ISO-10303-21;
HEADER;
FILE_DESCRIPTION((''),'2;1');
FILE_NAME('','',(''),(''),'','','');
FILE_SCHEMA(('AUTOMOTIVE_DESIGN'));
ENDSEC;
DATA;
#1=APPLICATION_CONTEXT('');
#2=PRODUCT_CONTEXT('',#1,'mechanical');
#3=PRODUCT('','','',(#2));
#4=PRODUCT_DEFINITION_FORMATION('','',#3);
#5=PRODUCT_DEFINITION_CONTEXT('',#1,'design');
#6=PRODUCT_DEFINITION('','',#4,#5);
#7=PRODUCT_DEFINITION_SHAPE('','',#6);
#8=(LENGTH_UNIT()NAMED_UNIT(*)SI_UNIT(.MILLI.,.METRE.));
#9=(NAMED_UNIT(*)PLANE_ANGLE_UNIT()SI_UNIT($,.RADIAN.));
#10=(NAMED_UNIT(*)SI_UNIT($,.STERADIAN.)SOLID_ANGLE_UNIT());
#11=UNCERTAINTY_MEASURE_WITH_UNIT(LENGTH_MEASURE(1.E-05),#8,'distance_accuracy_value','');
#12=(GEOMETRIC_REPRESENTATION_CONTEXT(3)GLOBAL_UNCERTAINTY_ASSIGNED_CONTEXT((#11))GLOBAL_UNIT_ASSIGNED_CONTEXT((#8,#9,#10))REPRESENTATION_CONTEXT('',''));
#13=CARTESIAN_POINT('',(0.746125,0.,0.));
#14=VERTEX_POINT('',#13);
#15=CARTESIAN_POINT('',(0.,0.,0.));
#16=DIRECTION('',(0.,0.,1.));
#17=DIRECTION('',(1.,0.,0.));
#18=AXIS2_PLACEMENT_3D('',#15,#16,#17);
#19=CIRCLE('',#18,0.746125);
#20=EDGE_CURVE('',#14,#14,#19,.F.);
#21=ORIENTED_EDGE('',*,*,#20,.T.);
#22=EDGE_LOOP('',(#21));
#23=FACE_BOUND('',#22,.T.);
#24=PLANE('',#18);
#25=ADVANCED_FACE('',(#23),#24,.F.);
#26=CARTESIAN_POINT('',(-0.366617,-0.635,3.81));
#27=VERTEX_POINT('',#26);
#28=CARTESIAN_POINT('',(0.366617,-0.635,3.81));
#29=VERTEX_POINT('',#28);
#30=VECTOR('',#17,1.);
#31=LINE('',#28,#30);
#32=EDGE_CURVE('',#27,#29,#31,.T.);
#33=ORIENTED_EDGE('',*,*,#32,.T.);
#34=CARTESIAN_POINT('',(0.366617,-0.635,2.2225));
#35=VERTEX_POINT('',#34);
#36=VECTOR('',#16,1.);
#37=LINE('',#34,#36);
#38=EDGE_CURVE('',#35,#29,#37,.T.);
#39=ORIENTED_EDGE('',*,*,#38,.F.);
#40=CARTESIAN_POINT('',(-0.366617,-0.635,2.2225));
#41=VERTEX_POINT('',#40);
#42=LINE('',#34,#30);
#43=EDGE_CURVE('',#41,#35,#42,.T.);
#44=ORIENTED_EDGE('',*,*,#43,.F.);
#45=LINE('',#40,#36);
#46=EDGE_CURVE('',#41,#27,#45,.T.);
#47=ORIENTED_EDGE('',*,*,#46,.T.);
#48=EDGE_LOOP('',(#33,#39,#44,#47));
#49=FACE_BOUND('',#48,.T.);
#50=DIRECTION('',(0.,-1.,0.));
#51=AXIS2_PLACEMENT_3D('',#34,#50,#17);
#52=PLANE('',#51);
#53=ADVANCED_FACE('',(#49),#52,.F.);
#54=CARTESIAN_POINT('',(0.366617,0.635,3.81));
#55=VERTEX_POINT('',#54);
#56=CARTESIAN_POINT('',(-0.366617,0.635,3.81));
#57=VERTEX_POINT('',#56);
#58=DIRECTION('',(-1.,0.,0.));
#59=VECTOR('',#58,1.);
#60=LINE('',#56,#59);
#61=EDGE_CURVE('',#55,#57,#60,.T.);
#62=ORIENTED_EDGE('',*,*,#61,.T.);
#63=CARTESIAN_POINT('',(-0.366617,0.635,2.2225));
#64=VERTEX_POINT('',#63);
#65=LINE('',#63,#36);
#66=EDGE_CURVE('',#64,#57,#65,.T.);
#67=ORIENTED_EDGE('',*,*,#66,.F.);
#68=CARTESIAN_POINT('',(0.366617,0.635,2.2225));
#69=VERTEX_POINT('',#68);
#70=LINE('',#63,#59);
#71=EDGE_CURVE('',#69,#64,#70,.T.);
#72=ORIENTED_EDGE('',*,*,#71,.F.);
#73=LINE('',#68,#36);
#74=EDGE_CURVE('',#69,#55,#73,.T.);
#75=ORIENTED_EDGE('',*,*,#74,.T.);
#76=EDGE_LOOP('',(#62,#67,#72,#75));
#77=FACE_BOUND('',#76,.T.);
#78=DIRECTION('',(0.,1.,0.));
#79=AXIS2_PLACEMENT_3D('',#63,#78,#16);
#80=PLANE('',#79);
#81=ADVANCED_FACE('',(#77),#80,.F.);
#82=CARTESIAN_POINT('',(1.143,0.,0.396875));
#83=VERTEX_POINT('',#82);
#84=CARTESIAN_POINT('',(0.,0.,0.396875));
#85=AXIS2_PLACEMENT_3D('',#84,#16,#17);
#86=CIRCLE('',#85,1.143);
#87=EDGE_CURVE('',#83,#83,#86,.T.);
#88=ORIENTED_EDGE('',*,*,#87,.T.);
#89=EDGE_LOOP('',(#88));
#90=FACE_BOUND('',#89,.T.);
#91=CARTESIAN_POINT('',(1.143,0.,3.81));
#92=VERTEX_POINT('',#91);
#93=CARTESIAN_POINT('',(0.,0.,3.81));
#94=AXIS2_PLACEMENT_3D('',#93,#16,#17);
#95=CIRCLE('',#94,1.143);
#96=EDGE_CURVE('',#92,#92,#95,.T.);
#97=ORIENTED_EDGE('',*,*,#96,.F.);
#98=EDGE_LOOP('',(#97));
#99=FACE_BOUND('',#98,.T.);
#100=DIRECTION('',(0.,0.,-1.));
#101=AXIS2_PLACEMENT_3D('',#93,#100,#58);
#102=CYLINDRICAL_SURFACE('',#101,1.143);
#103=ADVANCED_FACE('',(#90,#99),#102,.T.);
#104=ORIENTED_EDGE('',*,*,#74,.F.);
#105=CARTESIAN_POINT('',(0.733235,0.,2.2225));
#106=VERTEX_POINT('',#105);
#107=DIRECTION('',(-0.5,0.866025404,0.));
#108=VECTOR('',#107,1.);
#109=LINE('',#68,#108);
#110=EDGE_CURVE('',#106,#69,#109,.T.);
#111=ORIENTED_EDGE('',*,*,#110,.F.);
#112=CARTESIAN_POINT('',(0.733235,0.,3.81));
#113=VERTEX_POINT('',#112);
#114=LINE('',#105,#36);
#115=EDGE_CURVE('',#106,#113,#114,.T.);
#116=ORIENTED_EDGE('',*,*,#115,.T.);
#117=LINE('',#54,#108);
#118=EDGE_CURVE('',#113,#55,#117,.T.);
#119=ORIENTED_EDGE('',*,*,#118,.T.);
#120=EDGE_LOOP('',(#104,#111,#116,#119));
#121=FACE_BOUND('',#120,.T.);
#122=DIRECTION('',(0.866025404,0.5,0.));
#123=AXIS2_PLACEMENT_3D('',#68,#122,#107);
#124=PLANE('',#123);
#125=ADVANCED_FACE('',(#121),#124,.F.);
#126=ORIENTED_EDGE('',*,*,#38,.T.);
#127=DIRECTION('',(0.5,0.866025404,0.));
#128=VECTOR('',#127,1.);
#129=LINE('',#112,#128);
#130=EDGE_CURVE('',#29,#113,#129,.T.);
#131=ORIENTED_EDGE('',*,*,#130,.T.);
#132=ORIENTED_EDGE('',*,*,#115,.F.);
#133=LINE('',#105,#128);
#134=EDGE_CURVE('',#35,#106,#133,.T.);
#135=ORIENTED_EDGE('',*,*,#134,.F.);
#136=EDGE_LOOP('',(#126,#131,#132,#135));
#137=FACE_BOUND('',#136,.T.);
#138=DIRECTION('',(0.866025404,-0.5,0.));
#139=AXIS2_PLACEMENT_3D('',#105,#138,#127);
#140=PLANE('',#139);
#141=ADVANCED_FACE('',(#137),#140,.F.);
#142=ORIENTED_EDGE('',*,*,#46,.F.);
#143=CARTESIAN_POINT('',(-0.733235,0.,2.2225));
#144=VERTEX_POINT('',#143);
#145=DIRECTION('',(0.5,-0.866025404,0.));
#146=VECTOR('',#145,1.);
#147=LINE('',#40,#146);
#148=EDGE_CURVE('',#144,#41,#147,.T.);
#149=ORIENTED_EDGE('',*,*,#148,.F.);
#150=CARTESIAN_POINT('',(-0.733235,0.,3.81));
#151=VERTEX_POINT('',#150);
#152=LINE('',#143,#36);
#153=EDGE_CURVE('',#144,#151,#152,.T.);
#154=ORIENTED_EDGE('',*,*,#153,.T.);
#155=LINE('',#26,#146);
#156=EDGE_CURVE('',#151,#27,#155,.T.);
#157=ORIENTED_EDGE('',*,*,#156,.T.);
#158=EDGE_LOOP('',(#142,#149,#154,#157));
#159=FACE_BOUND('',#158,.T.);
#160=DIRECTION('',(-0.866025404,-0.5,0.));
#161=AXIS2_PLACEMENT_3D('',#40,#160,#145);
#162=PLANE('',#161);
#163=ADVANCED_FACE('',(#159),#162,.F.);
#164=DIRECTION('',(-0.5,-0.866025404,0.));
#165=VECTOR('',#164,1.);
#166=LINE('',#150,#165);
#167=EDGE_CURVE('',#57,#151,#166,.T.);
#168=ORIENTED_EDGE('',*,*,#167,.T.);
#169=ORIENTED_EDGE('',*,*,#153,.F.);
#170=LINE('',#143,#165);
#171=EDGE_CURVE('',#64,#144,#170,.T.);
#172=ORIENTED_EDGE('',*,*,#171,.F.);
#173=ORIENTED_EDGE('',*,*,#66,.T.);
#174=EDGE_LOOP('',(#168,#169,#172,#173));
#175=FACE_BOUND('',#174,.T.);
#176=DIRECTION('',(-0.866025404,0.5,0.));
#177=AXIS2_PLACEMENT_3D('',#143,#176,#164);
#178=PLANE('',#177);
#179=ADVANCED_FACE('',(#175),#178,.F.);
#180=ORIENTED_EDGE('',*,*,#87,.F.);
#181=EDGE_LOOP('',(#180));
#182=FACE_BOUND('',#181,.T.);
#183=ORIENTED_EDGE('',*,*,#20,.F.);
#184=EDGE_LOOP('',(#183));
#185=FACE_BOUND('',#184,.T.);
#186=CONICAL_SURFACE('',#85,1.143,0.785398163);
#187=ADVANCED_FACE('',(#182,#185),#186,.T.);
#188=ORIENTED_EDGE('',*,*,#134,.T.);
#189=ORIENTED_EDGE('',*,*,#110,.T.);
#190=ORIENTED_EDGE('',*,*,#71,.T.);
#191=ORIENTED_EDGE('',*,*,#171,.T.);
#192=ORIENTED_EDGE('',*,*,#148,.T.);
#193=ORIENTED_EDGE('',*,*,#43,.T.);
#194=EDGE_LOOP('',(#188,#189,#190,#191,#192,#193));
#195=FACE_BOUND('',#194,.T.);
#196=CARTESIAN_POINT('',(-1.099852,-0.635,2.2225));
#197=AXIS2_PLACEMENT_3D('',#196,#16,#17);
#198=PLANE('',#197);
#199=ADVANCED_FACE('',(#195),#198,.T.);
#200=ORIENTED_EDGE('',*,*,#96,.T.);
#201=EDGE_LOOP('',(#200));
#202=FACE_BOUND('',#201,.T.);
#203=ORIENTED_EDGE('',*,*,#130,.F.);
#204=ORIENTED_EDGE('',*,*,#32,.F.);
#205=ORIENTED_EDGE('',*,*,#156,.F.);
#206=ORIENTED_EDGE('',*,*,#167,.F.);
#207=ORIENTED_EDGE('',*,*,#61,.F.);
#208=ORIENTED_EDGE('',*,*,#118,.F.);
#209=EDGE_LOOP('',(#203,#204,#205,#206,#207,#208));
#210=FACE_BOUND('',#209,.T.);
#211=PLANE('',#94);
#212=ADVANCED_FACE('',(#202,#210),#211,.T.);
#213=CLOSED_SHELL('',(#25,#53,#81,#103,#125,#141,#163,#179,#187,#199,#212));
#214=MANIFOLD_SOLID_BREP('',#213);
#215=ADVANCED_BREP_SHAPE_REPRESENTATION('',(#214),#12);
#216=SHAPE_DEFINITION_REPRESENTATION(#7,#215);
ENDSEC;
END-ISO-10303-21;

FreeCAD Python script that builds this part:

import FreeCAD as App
import Part
import Sketcher
from FreeCAD import Vector
Q = App.Units.Quantity


def edges_at(feature, points):
    """Names of the edges that pass closest to the given points."""
    edges = feature.Shape.Edges
    near = lambda p: min(range(len(edges)), key=lambda i: edges[i].distToShape(Part.Vertex(*p))[0])
    return sorted({f"Edge{near(p) + 1}" for p in points})

doc = App.newDocument("Part")
body = doc.addObject("PartDesign::Body", "Body")

# Sketch on XY plane
sketch1 = body.newObject("Sketcher::SketchObject", "Sketch")
sketch1.AttachmentSupport = (doc.getObject("XY_Plane"), [""])
sketch1.MapMode = "FlatFace"
sketch1.addGeometry(Part.Circle(Vector(0, 0, 0), Vector(0, 0, 1), 1.143), False)
sketch1.addConstraint([
    Sketcher.Constraint("Coincident", 0, 3, -1, 1),
    Sketcher.Constraint("Diameter", 0, Q("0.09 in")),
])
pad1 = body.newObject("PartDesign::Pad", "Pad")
pad1.Profile = sketch1
pad1.Length = Q("0.15 in")

# Sketch on XY plane
sketch2 = body.newObject("Sketcher::SketchObject", "Sketch001")
sketch2.AttachmentSupport = (doc.getObject("XY_Plane"), [""])
sketch2.MapMode = "FlatFace"
sketch2.AttachmentOffset = App.Placement(Vector(0, 0, 0.15 * 25.4), App.Rotation())
sketch2.addGeometry([
    Part.LineSegment(Vector(0.366617, 0.635, 0), Vector(-0.366617, 0.635, 0)),  # 0
    Part.LineSegment(Vector(-0.366617, 0.635, 0), Vector(-0.733235, 0, 0)),  # 1
    Part.LineSegment(Vector(-0.733235, 0, 0), Vector(-0.366617, -0.635, 0)),  # 2
    Part.LineSegment(Vector(-0.366617, -0.635, 0), Vector(0.366617, -0.635, 0)),  # 3
    Part.LineSegment(Vector(0.366617, -0.635, 0), Vector(0.733235, 0, 0)),  # 4
    Part.LineSegment(Vector(0.733235, 0, 0), Vector(0.366617, 0.635, 0)),  # 5
], False)
sketch2.addConstraint([
    Sketcher.Constraint("Coincident", 0, 2, 1, 1),
    Sketcher.Constraint("Coincident", 1, 2, 2, 1),
    Sketcher.Constraint("Coincident", 2, 2, 3, 1),
    Sketcher.Constraint("Coincident", 3, 2, 4, 1),
    Sketcher.Constraint("Coincident", 4, 2, 5, 1),
    Sketcher.Constraint("Coincident", 5, 2, 0, 1),
    Sketcher.Constraint("Horizontal", 0),
    Sketcher.Constraint("Horizontal", 3),
    Sketcher.Constraint("Symmetric", 0, 2, 3, 2, -1, 1),
    Sketcher.Constraint("Symmetric", 1, 2, 4, 2, -1, 1),
    Sketcher.Constraint("PointOnObject", 1, 2, -1),
    Sketcher.Constraint("Parallel", 2, 5),
    Sketcher.Constraint("Vertical", 0, 2, 2, 2),
    Sketcher.Constraint("Angle", 1, Q("-120 deg")),
    Sketcher.Constraint("DistanceY", 2, 2, 0, 2, Q("0.05 in")),
    Sketcher.Constraint("DistanceX", 0, 2, 0, 1, Q("0.733235 mm")),
])
pocket1 = body.newObject("PartDesign::Pocket", "Pocket")
pocket1.Profile = sketch2
pocket1.Length = Q("0.0625 in")
doc.recompute()

chamfer = body.newObject("PartDesign::Chamfer", "Chamfer")
chamfer.Base = (pocket1, edges_at(pocket1, [(-1.143, 0, 0)]))
chamfer.Size = Q("0.015625 in")

doc.recompute()
